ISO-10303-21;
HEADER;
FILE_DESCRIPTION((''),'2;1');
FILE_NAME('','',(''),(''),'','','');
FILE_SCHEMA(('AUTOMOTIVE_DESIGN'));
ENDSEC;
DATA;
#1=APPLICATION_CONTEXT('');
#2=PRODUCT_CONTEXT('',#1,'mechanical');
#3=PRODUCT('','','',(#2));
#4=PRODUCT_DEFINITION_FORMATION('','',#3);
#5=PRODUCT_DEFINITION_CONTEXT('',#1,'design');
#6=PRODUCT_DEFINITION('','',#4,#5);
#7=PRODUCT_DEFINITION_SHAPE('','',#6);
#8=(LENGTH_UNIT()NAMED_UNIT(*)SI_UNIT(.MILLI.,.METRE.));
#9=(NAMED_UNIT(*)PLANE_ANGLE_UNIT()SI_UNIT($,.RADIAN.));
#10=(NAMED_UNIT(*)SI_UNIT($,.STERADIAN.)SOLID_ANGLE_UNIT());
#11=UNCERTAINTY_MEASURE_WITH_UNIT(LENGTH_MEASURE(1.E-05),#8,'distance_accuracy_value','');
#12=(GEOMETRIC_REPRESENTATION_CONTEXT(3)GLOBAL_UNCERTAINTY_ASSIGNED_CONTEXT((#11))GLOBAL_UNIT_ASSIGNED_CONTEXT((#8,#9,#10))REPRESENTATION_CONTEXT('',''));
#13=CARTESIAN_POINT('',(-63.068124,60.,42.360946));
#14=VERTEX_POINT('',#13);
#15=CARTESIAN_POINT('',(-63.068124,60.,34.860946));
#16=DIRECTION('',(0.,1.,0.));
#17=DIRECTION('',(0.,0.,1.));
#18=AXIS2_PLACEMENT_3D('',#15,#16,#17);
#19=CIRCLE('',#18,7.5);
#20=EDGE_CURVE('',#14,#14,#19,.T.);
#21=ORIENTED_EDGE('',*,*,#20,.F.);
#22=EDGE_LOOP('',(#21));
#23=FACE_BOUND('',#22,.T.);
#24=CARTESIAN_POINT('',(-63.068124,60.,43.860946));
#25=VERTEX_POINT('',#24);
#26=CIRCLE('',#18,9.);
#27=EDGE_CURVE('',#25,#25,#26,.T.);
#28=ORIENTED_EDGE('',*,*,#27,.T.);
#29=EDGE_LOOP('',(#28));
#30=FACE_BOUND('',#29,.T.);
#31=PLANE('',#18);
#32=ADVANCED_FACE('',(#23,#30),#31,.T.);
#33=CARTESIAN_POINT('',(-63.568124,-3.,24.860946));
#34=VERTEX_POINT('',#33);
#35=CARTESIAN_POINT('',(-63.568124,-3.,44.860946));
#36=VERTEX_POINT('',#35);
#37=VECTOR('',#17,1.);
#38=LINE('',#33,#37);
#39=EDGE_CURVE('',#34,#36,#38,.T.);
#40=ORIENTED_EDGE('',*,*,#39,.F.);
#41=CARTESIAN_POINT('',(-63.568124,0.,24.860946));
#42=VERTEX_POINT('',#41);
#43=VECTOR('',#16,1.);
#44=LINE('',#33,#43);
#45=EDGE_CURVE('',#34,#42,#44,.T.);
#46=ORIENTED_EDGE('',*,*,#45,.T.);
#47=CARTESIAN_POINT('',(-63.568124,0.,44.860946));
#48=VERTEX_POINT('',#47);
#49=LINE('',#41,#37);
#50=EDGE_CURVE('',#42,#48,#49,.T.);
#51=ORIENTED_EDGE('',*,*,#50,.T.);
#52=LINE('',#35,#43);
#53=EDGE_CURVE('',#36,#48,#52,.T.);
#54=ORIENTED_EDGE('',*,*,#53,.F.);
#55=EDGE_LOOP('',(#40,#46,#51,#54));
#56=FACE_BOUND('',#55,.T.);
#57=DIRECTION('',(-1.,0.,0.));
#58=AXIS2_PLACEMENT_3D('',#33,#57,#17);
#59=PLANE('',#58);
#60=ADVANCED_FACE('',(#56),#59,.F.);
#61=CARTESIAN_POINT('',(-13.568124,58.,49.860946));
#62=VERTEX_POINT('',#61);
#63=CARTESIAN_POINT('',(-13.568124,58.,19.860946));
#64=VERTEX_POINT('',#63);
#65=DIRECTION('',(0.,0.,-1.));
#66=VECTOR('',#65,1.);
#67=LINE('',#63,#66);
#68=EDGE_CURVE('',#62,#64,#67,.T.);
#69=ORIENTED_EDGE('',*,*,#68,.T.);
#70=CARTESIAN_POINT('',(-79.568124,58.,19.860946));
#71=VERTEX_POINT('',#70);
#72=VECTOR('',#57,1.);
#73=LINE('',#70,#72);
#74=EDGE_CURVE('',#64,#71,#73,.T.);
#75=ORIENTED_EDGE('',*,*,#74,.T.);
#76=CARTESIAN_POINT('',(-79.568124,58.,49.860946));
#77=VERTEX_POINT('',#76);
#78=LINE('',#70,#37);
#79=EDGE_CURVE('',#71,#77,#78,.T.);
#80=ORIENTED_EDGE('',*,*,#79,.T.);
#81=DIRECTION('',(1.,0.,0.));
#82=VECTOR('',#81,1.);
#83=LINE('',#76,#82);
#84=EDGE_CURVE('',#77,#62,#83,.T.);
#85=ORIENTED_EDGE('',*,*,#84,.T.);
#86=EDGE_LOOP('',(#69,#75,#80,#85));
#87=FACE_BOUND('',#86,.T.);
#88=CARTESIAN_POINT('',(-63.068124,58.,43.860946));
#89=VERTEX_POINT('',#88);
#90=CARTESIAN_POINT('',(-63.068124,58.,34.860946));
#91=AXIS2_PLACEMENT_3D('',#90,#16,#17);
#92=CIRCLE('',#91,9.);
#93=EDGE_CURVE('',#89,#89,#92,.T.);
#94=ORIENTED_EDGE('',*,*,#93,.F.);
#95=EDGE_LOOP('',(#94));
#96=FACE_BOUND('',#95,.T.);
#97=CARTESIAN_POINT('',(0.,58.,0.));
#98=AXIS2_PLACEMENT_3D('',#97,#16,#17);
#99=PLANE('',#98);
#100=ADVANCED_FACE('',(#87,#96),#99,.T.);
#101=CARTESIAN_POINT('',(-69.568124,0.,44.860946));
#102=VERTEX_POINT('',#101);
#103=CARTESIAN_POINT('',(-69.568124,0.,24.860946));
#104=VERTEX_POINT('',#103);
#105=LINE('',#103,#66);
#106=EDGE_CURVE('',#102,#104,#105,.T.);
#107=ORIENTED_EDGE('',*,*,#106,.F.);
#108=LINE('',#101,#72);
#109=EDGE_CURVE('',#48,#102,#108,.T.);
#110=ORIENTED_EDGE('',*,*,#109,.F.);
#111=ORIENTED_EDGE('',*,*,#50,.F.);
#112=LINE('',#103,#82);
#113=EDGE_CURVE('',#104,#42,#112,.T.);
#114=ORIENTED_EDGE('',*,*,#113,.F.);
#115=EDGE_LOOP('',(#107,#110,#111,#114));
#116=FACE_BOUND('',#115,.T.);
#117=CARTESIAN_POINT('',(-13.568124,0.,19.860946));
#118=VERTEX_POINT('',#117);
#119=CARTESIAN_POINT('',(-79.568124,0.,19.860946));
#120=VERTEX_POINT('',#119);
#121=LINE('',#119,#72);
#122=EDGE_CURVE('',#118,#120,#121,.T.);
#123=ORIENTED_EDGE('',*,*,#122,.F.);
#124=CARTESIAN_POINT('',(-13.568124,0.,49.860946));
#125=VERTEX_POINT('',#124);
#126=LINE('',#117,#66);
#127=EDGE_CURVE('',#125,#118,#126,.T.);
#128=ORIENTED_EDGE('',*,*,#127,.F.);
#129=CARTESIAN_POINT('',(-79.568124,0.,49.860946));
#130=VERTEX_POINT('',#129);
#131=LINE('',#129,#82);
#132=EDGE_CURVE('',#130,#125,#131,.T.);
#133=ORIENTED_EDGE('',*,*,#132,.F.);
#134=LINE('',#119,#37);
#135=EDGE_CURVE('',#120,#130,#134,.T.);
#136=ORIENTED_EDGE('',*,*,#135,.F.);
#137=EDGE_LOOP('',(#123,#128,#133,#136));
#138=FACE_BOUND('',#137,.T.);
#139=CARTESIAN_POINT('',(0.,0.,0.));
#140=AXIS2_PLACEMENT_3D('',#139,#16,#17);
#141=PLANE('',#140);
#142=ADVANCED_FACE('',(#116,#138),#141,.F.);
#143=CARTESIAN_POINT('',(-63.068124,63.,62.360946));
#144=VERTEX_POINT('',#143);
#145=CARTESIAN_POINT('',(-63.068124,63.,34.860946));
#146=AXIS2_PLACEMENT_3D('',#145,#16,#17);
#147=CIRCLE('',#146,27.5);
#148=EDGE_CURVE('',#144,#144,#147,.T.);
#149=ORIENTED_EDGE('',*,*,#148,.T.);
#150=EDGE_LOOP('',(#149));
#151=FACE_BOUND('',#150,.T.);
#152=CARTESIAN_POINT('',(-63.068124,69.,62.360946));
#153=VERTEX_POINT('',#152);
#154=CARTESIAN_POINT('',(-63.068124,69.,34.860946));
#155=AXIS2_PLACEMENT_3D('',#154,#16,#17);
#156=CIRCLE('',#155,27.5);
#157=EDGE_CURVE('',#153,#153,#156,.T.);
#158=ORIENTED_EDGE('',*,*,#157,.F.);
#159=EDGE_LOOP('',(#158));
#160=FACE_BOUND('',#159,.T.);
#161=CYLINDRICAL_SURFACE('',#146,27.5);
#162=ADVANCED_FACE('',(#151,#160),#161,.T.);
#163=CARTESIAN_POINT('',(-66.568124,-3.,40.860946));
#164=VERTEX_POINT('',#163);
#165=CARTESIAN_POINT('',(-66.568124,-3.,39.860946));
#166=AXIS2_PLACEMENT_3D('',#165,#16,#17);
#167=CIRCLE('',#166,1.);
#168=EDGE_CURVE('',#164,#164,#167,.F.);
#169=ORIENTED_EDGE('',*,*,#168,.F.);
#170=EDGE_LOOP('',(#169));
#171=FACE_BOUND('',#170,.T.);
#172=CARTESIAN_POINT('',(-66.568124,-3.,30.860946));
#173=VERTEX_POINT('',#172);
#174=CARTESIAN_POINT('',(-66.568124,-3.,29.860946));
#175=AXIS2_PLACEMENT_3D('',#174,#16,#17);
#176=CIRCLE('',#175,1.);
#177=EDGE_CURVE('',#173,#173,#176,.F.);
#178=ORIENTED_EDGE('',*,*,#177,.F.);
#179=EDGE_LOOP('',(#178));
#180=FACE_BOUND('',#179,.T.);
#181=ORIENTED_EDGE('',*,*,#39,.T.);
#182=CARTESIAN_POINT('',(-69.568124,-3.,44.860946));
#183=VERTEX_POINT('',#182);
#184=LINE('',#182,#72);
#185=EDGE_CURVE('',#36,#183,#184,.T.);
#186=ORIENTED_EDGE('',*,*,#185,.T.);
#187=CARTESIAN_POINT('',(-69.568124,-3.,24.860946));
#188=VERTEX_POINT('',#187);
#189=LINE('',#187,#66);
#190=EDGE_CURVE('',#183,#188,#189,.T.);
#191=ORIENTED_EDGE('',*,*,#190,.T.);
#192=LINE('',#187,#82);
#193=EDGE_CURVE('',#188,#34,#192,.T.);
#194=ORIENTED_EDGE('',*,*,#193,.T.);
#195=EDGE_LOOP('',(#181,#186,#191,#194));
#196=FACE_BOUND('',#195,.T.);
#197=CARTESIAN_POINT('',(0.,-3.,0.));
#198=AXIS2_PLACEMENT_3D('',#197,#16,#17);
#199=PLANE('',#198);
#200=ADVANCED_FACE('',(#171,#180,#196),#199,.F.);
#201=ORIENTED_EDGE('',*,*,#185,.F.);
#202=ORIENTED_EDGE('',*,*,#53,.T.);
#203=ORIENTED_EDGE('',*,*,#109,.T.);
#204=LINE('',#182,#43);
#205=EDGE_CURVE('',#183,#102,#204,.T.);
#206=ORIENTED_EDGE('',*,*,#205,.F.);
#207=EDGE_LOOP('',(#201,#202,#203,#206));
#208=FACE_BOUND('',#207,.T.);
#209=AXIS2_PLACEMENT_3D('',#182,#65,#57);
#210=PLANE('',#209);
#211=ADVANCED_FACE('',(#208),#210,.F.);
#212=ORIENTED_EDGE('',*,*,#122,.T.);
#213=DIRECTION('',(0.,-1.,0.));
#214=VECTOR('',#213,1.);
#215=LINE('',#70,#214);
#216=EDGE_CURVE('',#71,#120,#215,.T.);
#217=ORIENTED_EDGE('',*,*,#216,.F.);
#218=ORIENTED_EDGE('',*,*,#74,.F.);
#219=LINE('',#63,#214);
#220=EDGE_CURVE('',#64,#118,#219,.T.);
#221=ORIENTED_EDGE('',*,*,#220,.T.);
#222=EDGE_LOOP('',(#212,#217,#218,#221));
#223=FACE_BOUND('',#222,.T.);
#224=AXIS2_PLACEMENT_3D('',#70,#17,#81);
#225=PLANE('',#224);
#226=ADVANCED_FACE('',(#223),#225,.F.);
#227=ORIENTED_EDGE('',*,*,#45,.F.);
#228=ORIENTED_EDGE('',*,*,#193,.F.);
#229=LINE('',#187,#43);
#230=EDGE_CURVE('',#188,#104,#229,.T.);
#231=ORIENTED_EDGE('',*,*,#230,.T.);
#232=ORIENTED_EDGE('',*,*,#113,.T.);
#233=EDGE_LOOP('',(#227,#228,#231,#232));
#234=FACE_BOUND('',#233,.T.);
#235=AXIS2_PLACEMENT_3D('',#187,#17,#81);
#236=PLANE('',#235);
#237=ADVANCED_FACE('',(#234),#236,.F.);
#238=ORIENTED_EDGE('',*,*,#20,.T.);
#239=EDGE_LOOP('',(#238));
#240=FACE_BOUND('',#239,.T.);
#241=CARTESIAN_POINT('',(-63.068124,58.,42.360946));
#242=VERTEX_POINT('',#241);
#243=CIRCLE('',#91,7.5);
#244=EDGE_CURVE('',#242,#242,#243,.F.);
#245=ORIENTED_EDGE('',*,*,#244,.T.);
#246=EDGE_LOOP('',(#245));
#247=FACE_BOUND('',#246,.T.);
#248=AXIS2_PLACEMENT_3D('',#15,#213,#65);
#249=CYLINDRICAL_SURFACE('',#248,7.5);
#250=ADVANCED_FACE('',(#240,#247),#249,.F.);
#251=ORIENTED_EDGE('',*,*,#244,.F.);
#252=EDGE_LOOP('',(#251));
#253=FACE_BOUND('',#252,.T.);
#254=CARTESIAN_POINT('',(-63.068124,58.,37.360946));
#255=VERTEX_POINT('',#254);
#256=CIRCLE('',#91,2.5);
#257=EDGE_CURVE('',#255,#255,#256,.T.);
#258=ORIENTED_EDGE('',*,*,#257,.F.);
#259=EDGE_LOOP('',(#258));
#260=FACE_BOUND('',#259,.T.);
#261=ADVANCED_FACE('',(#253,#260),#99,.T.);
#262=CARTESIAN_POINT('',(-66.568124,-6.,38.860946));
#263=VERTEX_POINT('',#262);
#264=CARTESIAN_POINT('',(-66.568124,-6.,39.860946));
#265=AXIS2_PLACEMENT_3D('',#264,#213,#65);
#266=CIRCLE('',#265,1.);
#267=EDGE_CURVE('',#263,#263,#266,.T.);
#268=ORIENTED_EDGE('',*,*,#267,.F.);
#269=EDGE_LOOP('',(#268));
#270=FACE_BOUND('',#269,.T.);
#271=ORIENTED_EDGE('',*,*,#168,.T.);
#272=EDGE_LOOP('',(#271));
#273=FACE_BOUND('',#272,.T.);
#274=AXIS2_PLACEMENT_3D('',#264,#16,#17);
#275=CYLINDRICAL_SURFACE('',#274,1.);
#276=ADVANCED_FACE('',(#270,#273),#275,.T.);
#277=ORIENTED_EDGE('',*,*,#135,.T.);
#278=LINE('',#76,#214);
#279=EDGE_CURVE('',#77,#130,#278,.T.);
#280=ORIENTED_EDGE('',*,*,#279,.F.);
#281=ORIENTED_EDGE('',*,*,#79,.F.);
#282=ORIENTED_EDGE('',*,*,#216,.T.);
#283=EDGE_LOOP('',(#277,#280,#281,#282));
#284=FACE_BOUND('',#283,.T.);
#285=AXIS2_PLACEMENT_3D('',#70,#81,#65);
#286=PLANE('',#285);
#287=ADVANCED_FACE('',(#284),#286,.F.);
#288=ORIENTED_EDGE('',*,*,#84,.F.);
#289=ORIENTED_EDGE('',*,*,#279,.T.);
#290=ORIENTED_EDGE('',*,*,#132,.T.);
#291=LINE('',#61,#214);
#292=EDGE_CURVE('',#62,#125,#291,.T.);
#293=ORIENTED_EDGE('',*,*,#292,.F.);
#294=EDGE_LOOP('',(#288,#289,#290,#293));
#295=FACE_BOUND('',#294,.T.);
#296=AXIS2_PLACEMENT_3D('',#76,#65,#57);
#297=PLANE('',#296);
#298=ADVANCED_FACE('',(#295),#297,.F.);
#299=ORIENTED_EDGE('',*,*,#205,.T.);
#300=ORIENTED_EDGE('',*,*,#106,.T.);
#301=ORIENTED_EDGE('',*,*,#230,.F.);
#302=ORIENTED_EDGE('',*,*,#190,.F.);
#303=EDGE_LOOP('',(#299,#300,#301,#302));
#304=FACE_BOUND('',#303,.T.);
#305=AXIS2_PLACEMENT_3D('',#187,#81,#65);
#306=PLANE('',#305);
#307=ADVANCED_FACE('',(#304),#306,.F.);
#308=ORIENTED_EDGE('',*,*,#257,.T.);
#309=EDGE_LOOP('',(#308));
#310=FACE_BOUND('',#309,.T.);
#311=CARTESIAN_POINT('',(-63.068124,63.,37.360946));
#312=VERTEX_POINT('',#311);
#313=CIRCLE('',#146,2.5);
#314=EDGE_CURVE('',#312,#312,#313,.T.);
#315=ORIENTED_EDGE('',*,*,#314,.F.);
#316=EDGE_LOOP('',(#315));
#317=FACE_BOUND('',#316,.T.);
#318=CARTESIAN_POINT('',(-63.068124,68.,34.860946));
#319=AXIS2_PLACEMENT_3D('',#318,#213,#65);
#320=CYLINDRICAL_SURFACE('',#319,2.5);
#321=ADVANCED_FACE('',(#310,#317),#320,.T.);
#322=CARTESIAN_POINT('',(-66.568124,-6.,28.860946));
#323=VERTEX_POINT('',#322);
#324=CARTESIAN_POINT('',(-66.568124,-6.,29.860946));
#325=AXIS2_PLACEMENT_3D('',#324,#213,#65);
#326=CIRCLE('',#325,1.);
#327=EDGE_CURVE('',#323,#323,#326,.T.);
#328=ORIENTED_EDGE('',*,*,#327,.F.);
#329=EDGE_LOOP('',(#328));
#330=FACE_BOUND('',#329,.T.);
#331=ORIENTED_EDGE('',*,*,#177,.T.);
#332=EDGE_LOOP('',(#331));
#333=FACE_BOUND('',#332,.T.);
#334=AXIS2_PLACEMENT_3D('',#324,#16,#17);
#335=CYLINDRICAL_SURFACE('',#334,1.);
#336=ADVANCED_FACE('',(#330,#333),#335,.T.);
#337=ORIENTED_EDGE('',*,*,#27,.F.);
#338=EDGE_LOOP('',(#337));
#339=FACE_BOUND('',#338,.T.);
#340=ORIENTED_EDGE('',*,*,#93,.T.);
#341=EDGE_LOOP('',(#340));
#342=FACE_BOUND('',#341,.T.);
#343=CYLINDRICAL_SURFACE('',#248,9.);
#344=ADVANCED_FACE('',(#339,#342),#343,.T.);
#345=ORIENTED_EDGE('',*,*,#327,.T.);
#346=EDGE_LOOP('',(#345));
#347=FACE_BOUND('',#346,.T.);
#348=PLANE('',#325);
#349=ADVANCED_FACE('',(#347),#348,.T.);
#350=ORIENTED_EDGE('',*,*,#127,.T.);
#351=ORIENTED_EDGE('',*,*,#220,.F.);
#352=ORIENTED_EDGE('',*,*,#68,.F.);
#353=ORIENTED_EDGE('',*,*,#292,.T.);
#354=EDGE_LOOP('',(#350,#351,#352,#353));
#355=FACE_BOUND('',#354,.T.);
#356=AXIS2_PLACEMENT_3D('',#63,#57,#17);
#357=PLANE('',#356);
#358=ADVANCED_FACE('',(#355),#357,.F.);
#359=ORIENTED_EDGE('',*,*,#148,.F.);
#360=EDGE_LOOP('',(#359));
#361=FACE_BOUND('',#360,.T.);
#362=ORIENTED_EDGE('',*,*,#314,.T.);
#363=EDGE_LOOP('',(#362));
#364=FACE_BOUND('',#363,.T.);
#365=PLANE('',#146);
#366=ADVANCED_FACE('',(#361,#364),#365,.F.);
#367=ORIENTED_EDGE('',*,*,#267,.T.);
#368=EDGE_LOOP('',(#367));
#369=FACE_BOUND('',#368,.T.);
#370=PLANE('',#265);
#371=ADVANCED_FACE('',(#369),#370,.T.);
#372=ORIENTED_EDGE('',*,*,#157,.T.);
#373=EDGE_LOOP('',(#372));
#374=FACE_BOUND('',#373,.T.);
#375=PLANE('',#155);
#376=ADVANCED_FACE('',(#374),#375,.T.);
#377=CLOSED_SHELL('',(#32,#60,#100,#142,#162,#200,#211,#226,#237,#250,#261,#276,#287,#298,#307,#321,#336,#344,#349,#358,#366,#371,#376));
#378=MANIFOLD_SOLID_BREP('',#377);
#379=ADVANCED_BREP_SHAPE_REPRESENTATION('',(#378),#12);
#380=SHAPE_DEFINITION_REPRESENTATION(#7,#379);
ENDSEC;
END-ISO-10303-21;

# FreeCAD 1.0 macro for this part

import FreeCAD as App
import Part
import Sketcher
from FreeCAD import Vector
Q = App.Units.Quantity

doc = App.newDocument("Part")
params = doc.addObject("Spreadsheet::Sheet", "Params")
for row, (alias, value) in enumerate([
    ("sketch1_width", "66 mm"),
    ("sketch1_height", "30 mm"),
    ("pad1_length", "58 mm"),
    ("sketch2_diameter", "18 mm"),
    ("sketch2_diameter2", "15 mm"),
    ("pad2_length", "2 mm"),
    ("sketch3_diameter", "5 mm"),
    ("pad3_length", "10 mm"),
    ("sketch4_diameter", "55 mm"),
    ("pad4_length", "1 mm"),
    ("pad4_length2", "5 mm"),
    ("sketch5_width", "6 mm"),
    ("sketch5_height", "20 mm"),
    ("pad5_length", "3 mm"),
    ("sketch6_diameter", "2 mm"),
    ("pad6_length", "3 mm"),
], start=1):
    params.set(f"A{row}", alias)
    params.set(f"B{row}", "=" + value)
    params.setAlias(f"B{row}", alias)

body = doc.addObject("PartDesign::Body", "Body")

# Sketch on XZ plane
sketch1 = body.newObject("Sketcher::SketchObject", "Sketch")
sketch1.AttachmentSupport = (doc.getObject("XZ_Plane"), [""])
sketch1.MapMode = "FlatFace"
sketch1.addGeometry(Part.LineSegment(Vector(-79.568124, 19.860946, 0), Vector(-79.568124, 49.860946, 0)), False)
sketch1.addGeometry(Part.LineSegment(Vector(-79.568124, 49.860946, 0), Vector(-13.568124, 49.860946, 0)), False)
sketch1.addGeometry(Part.LineSegment(Vector(-13.568124, 49.860946, 0), Vector(-13.568124, 19.860946, 0)), False)
sketch1.addGeometry(Part.LineSegment(Vector(-13.568124, 19.860946, 0), Vector(-79.568124, 19.860946, 0)), False)
sketch1.addConstraint(Sketcher.Constraint("Coincident", 0, 2, 1, 1))
sketch1.addConstraint(Sketcher.Constraint("Coincident", 1, 2, 2, 1))
sketch1.addConstraint(Sketcher.Constraint("Coincident", 2, 2, 3, 1))
sketch1.addConstraint(Sketcher.Constraint("Coincident", 3, 2, 0, 1))
sketch1.addConstraint(Sketcher.Constraint("Vertical", 0))
sketch1.addConstraint(Sketcher.Constraint("Horizontal", 1))
sketch1.addConstraint(Sketcher.Constraint("Vertical", 2))
sketch1.addConstraint(Sketcher.Constraint("Horizontal", 3))
sketch1.addConstraint(Sketcher.Constraint("DistanceX", 1, 1, 1, 2, Q("66 mm")))
sketch1.addConstraint(Sketcher.Constraint("DistanceY", 0, 1, 0, 2, Q("30 mm")))
sketch1.addConstraint(Sketcher.Constraint("DistanceX", 0, 2, -1, 1, Q("79.568124 mm")))
sketch1.addConstraint(Sketcher.Constraint("DistanceY", -1, 1, 0, 2, Q("49.860946 mm")))
sketch1.setExpression("Constraints[8]", "Params.sketch1_width")
sketch1.setExpression("Constraints[9]", "Params.sketch1_height")
pad1 = body.newObject("PartDesign::Pad", "Pad")
pad1.Profile = sketch1
pad1.setExpression("Length", "Params.pad1_length")
pad1.Reversed = True

# Sketch on XZ plane
sketch2 = body.newObject("Sketcher::SketchObject", "Sketch001")
sketch2.AttachmentSupport = (doc.getObject("XZ_Plane"), [""])
sketch2.MapMode = "FlatFace"
sketch2.AttachmentOffset = App.Placement(Vector(0, 0, -58), App.Rotation())
sketch2.addGeometry(Part.Circle(Vector(-63.068124, 34.860946, 0), Vector(0, 0, 1), 9), False)
sketch2.addGeometry(Part.Circle(Vector(-63.068124, 34.860946, 0), Vector(0, 0, 1), 7.5), False)
sketch2.addConstraint(Sketcher.Constraint("Coincident", 1, 3, 0, 3))
sketch2.addConstraint(Sketcher.Constraint("Diameter", 0, Q("18 mm")))
sketch2.addConstraint(Sketcher.Constraint("Diameter", 1, Q("15 mm")))
sketch2.addConstraint(Sketcher.Constraint("DistanceX", 0, 3, -1, 1, Q("63.068124 mm")))
sketch2.addConstraint(Sketcher.Constraint("DistanceY", -1, 1, 0, 3, Q("34.860946 mm")))
sketch2.setExpression("Constraints[1]", "Params.sketch2_diameter")
sketch2.setExpression("Constraints[2]", "Params.sketch2_diameter2")
pad2 = body.newObject("PartDesign::Pad", "Pad001")
pad2.Profile = sketch2
pad2.setExpression("Length", "Params.pad2_length")
pad2.Reversed = True

# Sketch on XZ plane
sketch3 = body.newObject("Sketcher::SketchObject", "Sketch002")
sketch3.AttachmentSupport = (doc.getObject("XZ_Plane"), [""])
sketch3.MapMode = "FlatFace"
sketch3.AttachmentOffset = App.Placement(Vector(0, 0, -58), App.Rotation())
sketch3.addGeometry(Part.Circle(Vector(-63.068124, 34.860946, 0), Vector(0, 0, 1), 2.5), False)
sketch3.addConstraint(Sketcher.Constraint("Diameter", 0, Q("5 mm")))
sketch3.addConstraint(Sketcher.Constraint("DistanceX", 0, 3, -1, 1, Q("63.068124 mm")))
sketch3.addConstraint(Sketcher.Constraint("DistanceY", -1, 1, 0, 3, Q("34.860946 mm")))
sketch3.setExpression("Constraints[0]", "Params.sketch3_diameter")
pad3 = body.newObject("PartDesign::Pad", "Pad002")
pad3.Profile = sketch3
pad3.setExpression("Length", "Params.pad3_length")
pad3.Reversed = True

# Sketch on XZ plane
sketch4 = body.newObject("Sketcher::SketchObject", "Sketch003")
sketch4.AttachmentSupport = (doc.getObject("XZ_Plane"), [""])
sketch4.MapMode = "FlatFace"
sketch4.AttachmentOffset = App.Placement(Vector(0, 0, -68), App.Rotation())
sketch4.addGeometry(Part.Circle(Vector(-63.068124, 34.860946, 0), Vector(0, 0, 1), 27.5), False)
sketch4.addConstraint(Sketcher.Constraint("Diameter", 0, Q("55 mm")))
sketch4.addConstraint(Sketcher.Constraint("DistanceX", 0, 3, -1, 1, Q("63.068124 mm")))
sketch4.addConstraint(Sketcher.Constraint("DistanceY", -1, 1, 0, 3, Q("34.860946 mm")))
sketch4.setExpression("Constraints[0]", "Params.sketch4_diameter")
pad4 = body.newObject("PartDesign::Pad", "Pad003")
pad4.Profile = sketch4
pad4.Type = "TwoLengths"
pad4.setExpression("Length", "Params.pad4_length")
pad4.setExpression("Length2", "Params.pad4_length2")
pad4.Reversed = True

# Sketch on XZ plane
sketch5 = body.newObject("Sketcher::SketchObject", "Sketch004")
sketch5.AttachmentSupport = (doc.getObject("XZ_Plane"), [""])
sketch5.MapMode = "FlatFace"
sketch5.addGeometry(Part.LineSegment(Vector(-69.568124, 44.860946, 0), Vector(-69.568124, 24.860946, 0)), False)
sketch5.addGeometry(Part.LineSegment(Vector(-69.568124, 24.860946, 0), Vector(-63.568124, 24.860946, 0)), False)
sketch5.addGeometry(Part.LineSegment(Vector(-63.568124, 24.860946, 0), Vector(-63.568124, 44.860946, 0)), False)
sketch5.addGeometry(Part.LineSegment(Vector(-63.568124, 44.860946, 0), Vector(-69.568124, 44.860946, 0)), False)
sketch5.addConstraint(Sketcher.Constraint("Coincident", 0, 2, 1, 1))
sketch5.addConstraint(Sketcher.Constraint("Coincident", 1, 2, 2, 1))
sketch5.addConstraint(Sketcher.Constraint("Coincident", 2, 2, 3, 1))
sketch5.addConstraint(Sketcher.Constraint("Coincident", 3, 2, 0, 1))
sketch5.addConstraint(Sketcher.Constraint("Vertical", 0))
sketch5.addConstraint(Sketcher.Constraint("Horizontal", 1))
sketch5.addConstraint(Sketcher.Constraint("Vertical", 2))
sketch5.addConstraint(Sketcher.Constraint("Horizontal", 3))
sketch5.addConstraint(Sketcher.Constraint("DistanceX", 1, 1, 1, 2, Q("6 mm")))
sketch5.addConstraint(Sketcher.Constraint("DistanceY", 0, 2, 0, 1, Q("20 mm")))
sketch5.addConstraint(Sketcher.Constraint("DistanceX", 0, 2, -1, 1, Q("69.568124 mm")))
sketch5.addConstraint(Sketcher.Constraint("DistanceY", -1, 1, 0, 2, Q("24.860946 mm")))
sketch5.setExpression("Constraints[8]", "Params.sketch5_width")
sketch5.setExpression("Constraints[9]", "Params.sketch5_height")
pad5 = body.newObject("PartDesign::Pad", "Pad004")
pad5.Profile = sketch5
pad5.setExpression("Length", "Params.pad5_length")

# Sketch on XZ plane
sketch6 = body.newObject("Sketcher::SketchObject", "Sketch005")
sketch6.AttachmentSupport = (doc.getObject("XZ_Plane"), [""])
sketch6.MapMode = "FlatFace"
sketch6.AttachmentOffset = App.Placement(Vector(0, 0, 3), App.Rotation())
sketch6.addGeometry(Part.Circle(Vector(-66.568124, 29.860946, 0), Vector(0, 0, 1), 1), False)
sketch6.addGeometry(Part.Circle(Vector(-66.568124, 39.860946, 0), Vector(0, 0, 1), 1), False)
sketch6.addConstraint(Sketcher.Constraint("Equal", 0, 1))
sketch6.addConstraint(Sketcher.Constraint("Vertical", 0, 3, 1, 3))
sketch6.addConstraint(Sketcher.Constraint("Diameter", 0, Q("2 mm")))
sketch6.addConstraint(Sketcher.Constraint("DistanceY", 0, 3, 1, 3, Q("10 mm")))
sketch6.addConstraint(Sketcher.Constraint("DistanceX", 0, 3, -1, 1, Q("66.568124 mm")))
sketch6.addConstraint(Sketcher.Constraint("DistanceY", -1, 1, 0, 3, Q("29.860946 mm")))
sketch6.setExpression("Constraints[2]", "Params.sketch6_diameter")
pad6 = body.newObject("PartDesign::Pad", "Pad005")
pad6.Profile = sketch6
pad6.setExpression("Length", "Params.pad6_length")

doc.recompute()
